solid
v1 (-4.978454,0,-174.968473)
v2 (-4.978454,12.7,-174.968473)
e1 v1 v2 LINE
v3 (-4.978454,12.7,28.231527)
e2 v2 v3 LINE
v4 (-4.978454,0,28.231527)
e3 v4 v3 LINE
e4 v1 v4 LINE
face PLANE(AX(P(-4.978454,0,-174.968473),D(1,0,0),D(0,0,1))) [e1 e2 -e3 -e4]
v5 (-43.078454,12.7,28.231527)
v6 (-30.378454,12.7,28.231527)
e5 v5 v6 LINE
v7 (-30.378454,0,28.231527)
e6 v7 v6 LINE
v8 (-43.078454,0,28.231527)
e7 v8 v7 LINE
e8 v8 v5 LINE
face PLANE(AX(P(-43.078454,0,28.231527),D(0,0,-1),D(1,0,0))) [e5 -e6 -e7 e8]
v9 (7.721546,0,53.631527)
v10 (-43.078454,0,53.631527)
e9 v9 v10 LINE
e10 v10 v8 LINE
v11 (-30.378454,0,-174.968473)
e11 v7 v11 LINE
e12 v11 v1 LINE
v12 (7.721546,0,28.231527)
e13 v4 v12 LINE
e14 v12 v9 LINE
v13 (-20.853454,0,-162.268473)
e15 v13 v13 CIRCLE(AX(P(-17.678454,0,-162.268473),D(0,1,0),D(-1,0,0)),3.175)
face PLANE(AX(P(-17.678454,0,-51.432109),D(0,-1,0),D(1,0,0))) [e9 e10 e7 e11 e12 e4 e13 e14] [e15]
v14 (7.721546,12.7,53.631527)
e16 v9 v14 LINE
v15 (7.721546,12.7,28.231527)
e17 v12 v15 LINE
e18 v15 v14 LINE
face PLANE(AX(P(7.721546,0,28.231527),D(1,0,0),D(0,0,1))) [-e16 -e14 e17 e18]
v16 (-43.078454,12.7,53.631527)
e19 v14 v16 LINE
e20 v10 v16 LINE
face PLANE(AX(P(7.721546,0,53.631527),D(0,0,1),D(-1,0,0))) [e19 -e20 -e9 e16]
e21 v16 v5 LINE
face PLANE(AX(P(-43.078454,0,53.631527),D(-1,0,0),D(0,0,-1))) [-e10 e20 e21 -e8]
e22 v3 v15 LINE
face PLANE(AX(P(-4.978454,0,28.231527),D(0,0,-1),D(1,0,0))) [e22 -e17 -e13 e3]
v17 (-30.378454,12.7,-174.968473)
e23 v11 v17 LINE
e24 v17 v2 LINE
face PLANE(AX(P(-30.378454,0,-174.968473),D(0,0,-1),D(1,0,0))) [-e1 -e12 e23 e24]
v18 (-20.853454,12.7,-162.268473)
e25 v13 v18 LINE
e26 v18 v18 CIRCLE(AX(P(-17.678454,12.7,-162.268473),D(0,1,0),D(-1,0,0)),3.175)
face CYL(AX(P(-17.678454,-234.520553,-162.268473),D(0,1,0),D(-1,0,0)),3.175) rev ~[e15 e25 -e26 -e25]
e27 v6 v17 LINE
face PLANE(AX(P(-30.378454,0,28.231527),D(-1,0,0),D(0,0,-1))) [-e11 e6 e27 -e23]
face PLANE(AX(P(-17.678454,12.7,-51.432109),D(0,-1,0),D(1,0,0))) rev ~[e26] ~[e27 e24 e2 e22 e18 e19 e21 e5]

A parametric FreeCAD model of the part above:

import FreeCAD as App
import Part
import Sketcher
from FreeCAD import Vector
Q = App.Units.Quantity

doc = App.newDocument("Part")
body = doc.addObject("PartDesign::Body", "Body")

sketch1 = body.newObject("Sketcher::SketchObject", "Sketch")
sketch1.AttachmentSupport = (doc.getObject("XZ_Plane"), [""])
sketch1.MapMode = "FlatFace"
sketch1.addGeometry(Part.LineSegment(Vector(-30, 28, 0), Vector(-30, -175, 0)), False)
sketch1.addGeometry(Part.LineSegment(Vector(-30, -175, 0), Vector(-5, -175, 0)), False)
sketch1.addGeometry(Part.LineSegment(Vector(-5, -175, 0), Vector(-5, 28, 0)), False)
sketch1.addGeometry(Part.LineSegment(Vector(-5, 28, 0), Vector(8, 28, 0)), False)
sketch1.addGeometry(Part.LineSegment(Vector(8, 28, 0), Vector(8, 54, 0)), False)
sketch1.addGeometry(Part.LineSegment(Vector(8, 54, 0), Vector(-43, 54, 0)), False)
sketch1.addGeometry(Part.LineSegment(Vector(-43, 54, 0), Vector(-43, 28, 0)), False)
sketch1.addGeometry(Part.LineSegment(Vector(-43, 28, 0), Vector(-30, 28, 0)), False)
sketch1.addConstraint(Sketcher.Constraint("Coincident", 0, 2, 1, 1))
sketch1.addConstraint(Sketcher.Constraint("Coincident", 1, 2, 2, 1))
sketch1.addConstraint(Sketcher.Constraint("Coincident", 2, 2, 3, 1))
sketch1.addConstraint(Sketcher.Constraint("Coincident", 3, 2, 4, 1))
sketch1.addConstraint(Sketcher.Constraint("Coincident", 4, 2, 5, 1))
sketch1.addConstraint(Sketcher.Constraint("Coincident", 5, 2, 6, 1))
sketch1.addConstraint(Sketcher.Constraint("Coincident", 6, 2, 7, 1))
sketch1.addConstraint(Sketcher.Constraint("Coincident", 7, 2, 0, 1))
sketch1.addConstraint(Sketcher.Constraint("Vertical", 0))
sketch1.addConstraint(Sketcher.Constraint("Horizontal", 1))
sketch1.addConstraint(Sketcher.Constraint("Vertical", 2))
sketch1.addConstraint(Sketcher.Constraint("Horizontal", 3))
sketch1.addConstraint(Sketcher.Constraint("Vertical", 4))
sketch1.addConstraint(Sketcher.Constraint("Horizontal", 5))
sketch1.addConstraint(Sketcher.Constraint("Vertical", 6))
sketch1.addConstraint(Sketcher.Constraint("Horizontal", 7))
sketch1.addConstraint(Sketcher.Constraint("Horizontal", 3, 2, 6, 2))
sketch1.addConstraint(Sketcher.Constraint("Equal", 3, 7))
sketch1.addConstraint(Sketcher.Constraint("Equal", 1, 4))
sketch1.addConstraint(Sketcher.Constraint("DistanceX", 1, 1, 1, 2, Q("1 in")))
sketch1.addConstraint(Sketcher.Constraint("DistanceX", 5, 2, 5, 1, Q("2 in")))
sketch1.addConstraint(Sketcher.Constraint("DistanceY", 0, 2, 0, 1, Q("8 in")))
sketch1.addConstraint(Sketcher.Constraint("DistanceX", 0, 2, -1, 1, 30.378454))
sketch1.addConstraint(Sketcher.Constraint("DistanceY", 0, 2, -1, 1, 174.968473))
pad1 = body.newObject("PartDesign::Pad", "Pad")
pad1.Profile = sketch1
pad1.Length = Q("0.5 in")
pad1.Reversed = True

sketch2 = body.newObject("Sketcher::SketchObject", "Sketch001")
sketch2.AttachmentSupport = (doc.getObject("XZ_Plane"), [""])
sketch2.MapMode = "FlatFace"
sketch2.addGeometry(Part.Circle(Vector(-17.7, -162.3, 0), Vector(0, 0, 1), 3.2), False)
sketch2.addConstraint(Sketcher.Constraint("Diameter", 0, Q("0.25 in")))
sketch2.addConstraint(Sketcher.Constraint("DistanceX", 0, 3, -1, 1, 17.678454))
sketch2.addConstraint(Sketcher.Constraint("DistanceY", 0, 3, -1, 1, 162.268473))
doc.recompute()
hole = body.newObject("PartDesign::Hole", "Hole")
hole.Profile = sketch2
hole.ThreadType = "None"
hole.Diameter = Q("0.25 in")
hole.DepthType = "ThroughAll"

doc.recompute()
